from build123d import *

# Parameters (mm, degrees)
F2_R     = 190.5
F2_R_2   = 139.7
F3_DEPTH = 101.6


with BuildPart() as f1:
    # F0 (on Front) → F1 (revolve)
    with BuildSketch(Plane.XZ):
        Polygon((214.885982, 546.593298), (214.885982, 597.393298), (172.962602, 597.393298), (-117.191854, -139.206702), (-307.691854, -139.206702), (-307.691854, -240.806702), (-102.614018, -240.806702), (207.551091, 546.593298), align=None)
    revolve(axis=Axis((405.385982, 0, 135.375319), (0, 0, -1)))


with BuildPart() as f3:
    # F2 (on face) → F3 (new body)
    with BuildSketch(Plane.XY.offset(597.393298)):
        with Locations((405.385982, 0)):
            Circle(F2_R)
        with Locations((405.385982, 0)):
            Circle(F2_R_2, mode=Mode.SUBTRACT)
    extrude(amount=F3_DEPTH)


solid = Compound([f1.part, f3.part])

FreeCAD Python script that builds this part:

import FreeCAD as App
import Part
import Sketcher
Q = App.Units.Quantity


def add_polygon(sketch, points):
    """Adds a closed chain of lines whose ends are joined by coincident constraints."""
    first, n = sketch.GeometryCount, len(points)
    for a, b in zip(points, points[1:] + points[:1]):
        sketch.addGeometry(Part.LineSegment(App.Vector(*a, 0), App.Vector(*b, 0)), False)
    for i in range(n):
        sketch.addConstraint(Sketcher.Constraint("Coincident", first + i, 2, first + (i + 1) % n, 1))

doc = App.newDocument("Part")
body = doc.addObject("PartDesign::Body", "Body")

# Sketch on XZ plane
sketch1 = body.newObject("Sketcher::SketchObject", "Sketch")
sketch1.AttachmentSupport = (doc.getObject("XZ_Plane"), [""])
sketch1.MapMode = "FlatFace"
add_polygon(sketch1, [(215, 547), (215, 597), (173, 597), (-117, -139), (-308, -139), (-308, -241), (-103, -241), (208, 547)])  # lines 0-7
sketch1.addGeometry(Part.LineSegment(App.Vector(405, 597, 0), App.Vector(405, -241, 0)), True)  # axis
sketch1.addConstraint([
    Sketcher.Constraint("Vertical", 0),
    Sketcher.Constraint("Horizontal", 1),
    Sketcher.Constraint("Horizontal", 3),
    Sketcher.Constraint("Vertical", 4),
    Sketcher.Constraint("Horizontal", 5),
    Sketcher.Constraint("Horizontal", 7),
    Sketcher.Constraint("Vertical", 8),
    Sketcher.Constraint("Parallel", 2, 6),
    Sketcher.Constraint("Horizontal", 1, 2, 8, 1),
    Sketcher.Constraint("Horizontal", 5, 2, 8, 2),
    Sketcher.Constraint("DistanceY", 0, 1, 0, 2, Q("2 in")),
    Sketcher.Constraint("DistanceY", 4, 2, 4, 1, Q("4 in")),
    Sketcher.Constraint("DistanceY", 8, 2, 8, 1, Q("33 in")),
    Sketcher.Constraint("DistanceX", 3, 2, 3, 1, Q("7.5 in")),
    Sketcher.Constraint("DistanceX", 5, 2, 8, 2, Q("20 in")),
    Sketcher.Constraint("Angle", 2, Q("-111.5 deg")),
    Sketcher.Constraint("DistanceX", 5, 2, 0, 2, Q("12.5 in")),
    Sketcher.Constraint("DistanceX", 1, 2, 1, 1, 41.92338),
    Sketcher.Constraint("DistanceY", -1, 1, 0, 2, 597.393298),
    Sketcher.Constraint("DistanceX", -1, 1, 1, 2, 172.962602),
])
revolution = body.newObject("PartDesign::Revolution", "Revolution")
revolution.Profile = sketch1
revolution.ReferenceAxis = (sketch1, ["Axis0"])
revolution.Angle = 360
body2 = doc.addObject("PartDesign::Body", "Body001")

# Sketch on XY plane
sketch2 = body2.newObject("Sketcher::SketchObject", "Sketch001")
sketch2.AttachmentSupport = (doc.getObject("XY_Plane001"), [""])
sketch2.MapMode = "FlatFace"
sketch2.AttachmentOffset = App.Placement(App.Vector(0, 0, 597.393298), App.Rotation())
sketch2.addGeometry([
    Part.Circle(App.Vector(405, 0, 0), App.Vector(0, 0, 1), 190),
    Part.Circle(App.Vector(405, 0, 0), App.Vector(0, 0, 1), 140),
], False)
sketch2.addConstraint([
    Sketcher.Constraint("Coincident", 1, 3, 0, 3),
    Sketcher.Constraint("PointOnObject", 0, 3, -1),
    Sketcher.Constraint("Diameter", 0, Q("15 in")),
    Sketcher.Constraint("Diameter", 1, Q("11 in")),
    Sketcher.Constraint("DistanceX", -1, 1, 0, 3, 405.385982),
])
pad1 = body2.newObject("PartDesign::Pad", "Pad")
pad1.Profile = sketch2
pad1.Length = Q("4 in")

doc.recompute()
